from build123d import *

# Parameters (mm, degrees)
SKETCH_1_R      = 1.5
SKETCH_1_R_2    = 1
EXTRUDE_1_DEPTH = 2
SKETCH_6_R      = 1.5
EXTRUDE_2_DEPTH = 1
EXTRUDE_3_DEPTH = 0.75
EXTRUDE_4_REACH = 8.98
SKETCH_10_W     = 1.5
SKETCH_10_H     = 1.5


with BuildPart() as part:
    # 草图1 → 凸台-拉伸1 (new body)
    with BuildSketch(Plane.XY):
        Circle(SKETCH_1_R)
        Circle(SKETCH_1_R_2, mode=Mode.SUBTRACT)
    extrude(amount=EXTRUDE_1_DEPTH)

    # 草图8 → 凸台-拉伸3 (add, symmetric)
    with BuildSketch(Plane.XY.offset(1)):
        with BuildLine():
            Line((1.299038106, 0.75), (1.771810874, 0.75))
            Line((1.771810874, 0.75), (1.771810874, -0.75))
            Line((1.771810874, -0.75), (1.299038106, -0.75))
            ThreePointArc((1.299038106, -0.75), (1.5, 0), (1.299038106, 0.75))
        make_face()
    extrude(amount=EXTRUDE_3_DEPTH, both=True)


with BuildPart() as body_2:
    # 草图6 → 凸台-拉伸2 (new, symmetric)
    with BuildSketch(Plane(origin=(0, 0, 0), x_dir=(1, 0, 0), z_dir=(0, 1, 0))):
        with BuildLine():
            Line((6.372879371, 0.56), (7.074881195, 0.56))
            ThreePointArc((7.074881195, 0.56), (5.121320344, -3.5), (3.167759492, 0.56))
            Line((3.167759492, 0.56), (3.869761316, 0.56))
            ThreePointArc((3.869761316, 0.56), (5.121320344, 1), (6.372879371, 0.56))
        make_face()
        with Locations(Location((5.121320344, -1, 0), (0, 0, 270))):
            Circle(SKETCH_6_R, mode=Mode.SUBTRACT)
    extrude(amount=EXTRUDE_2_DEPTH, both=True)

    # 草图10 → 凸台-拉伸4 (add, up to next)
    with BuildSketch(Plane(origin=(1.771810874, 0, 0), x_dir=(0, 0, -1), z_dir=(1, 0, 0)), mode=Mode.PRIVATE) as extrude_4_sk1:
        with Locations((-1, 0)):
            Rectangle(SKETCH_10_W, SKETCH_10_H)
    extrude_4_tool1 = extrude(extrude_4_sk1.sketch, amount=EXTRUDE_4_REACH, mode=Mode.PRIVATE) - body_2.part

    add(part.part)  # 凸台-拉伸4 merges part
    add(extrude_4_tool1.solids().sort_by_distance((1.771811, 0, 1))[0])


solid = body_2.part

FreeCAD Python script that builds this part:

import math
import FreeCAD as App
import Part
import Sketcher

doc = App.newDocument("Part")
body = doc.addObject("PartDesign::Body", "Body")

sketch1 = body.newObject("Sketcher::SketchObject", "Sketch")
sketch1.AttachmentSupport = (doc.getObject("XY_Plane"), [""])
sketch1.MapMode = "FlatFace"
sketch1.addGeometry(Part.Circle(App.Vector(0, 0, 0), App.Vector(0, 0, 1), 1.5), False)
sketch1.addGeometry(Part.Circle(App.Vector(0, 0, 0), App.Vector(0, 0, 1), 1), False)
sketch1.addConstraint(Sketcher.Constraint("Coincident", 0, 3, -1, 1))
sketch1.addConstraint(Sketcher.Constraint("Coincident", 1, 3, -1, 1))
sketch1.addConstraint(Sketcher.Constraint("Diameter", 0, 3.0))
sketch1.addConstraint(Sketcher.Constraint("Diameter", 1, 2.0))
pad1 = body.newObject("PartDesign::Pad", "Pad")
pad1.Profile = sketch1
pad1.Length = 2

sketch2 = body.newObject("Sketcher::SketchObject", "Sketch001")
sketch2.AttachmentSupport = (doc.getObject("XY_Plane"), [""])
sketch2.MapMode = "FlatFace"
sketch2.AttachmentOffset = App.Placement(App.Vector(0, 0, 1), App.Rotation())
sketch2.addGeometry(Part.LineSegment(App.Vector(1.771811, 0.75, 0), App.Vector(1.299038, 0.75, 0)), False)
sketch2.addGeometry(Part.ArcOfCircle(Part.Circle(App.Vector(0, 0, 0), App.Vector(0, 0, 1), 1.5), math.radians(-30), math.radians(30)), False)
sketch2.addGeometry(Part.LineSegment(App.Vector(1.299038, -0.75, 0), App.Vector(1.771811, -0.75, 0)), False)
sketch2.addGeometry(Part.LineSegment(App.Vector(1.771811, -0.75, 0), App.Vector(1.771811, 0.75, 0)), False)
sketch2.addConstraint(Sketcher.Constraint("Coincident", 0, 2, 1, 2))
sketch2.addConstraint(Sketcher.Constraint("Coincident", 1, 1, 2, 1))
sketch2.addConstraint(Sketcher.Constraint("Coincident", 2, 2, 3, 1))
sketch2.addConstraint(Sketcher.Constraint("Coincident", 3, 2, 0, 1))
sketch2.addConstraint(Sketcher.Constraint("Horizontal", 0))
sketch2.addConstraint(Sketcher.Constraint("Horizontal", 2))
sketch2.addConstraint(Sketcher.Constraint("Vertical", 3))
sketch2.addConstraint(Sketcher.Constraint("Coincident", 1, 3, -1, 1))
sketch2.addConstraint(Sketcher.Constraint("Vertical", 0, 2, 1, 1))
sketch2.addConstraint(Sketcher.Constraint("Radius", 1, 1.5))
sketch2.addConstraint(Sketcher.Constraint("DistanceY", 3, 1, 3, 2, 1.5))
sketch2.addConstraint(Sketcher.Constraint("DistanceX", 0, 2, 0, 1, 0.472773))
pad2 = body.newObject("PartDesign::Pad", "Pad001")
pad2.Profile = sketch2
pad2.Length = 1.5
pad2.Midplane = True
body2 = doc.addObject("PartDesign::Body", "Body001")
body2.AllowCompound = True

sketch3 = body2.newObject("Sketcher::SketchObject", "Sketch002")
sketch3.AttachmentSupport = (doc.getObject("XZ_Plane001"), [""])
sketch3.MapMode = "FlatFace"
sketch3.addGeometry(Part.LineSegment(App.Vector(7.074881, -0.56, 0), App.Vector(6.372879, -0.56, 0)), False)
sketch3.addGeometry(Part.ArcOfCircle(Part.Circle(App.Vector(5.12132, 1, 0), App.Vector(0, 0, 1), 2), math.radians(-128.739425), math.radians(-51.260575)), False)
sketch3.addGeometry(Part.LineSegment(App.Vector(3.869761, -0.56, 0), App.Vector(3.167759, -0.56, 0)), False)
sketch3.addGeometry(Part.ArcOfCircle(Part.Circle(App.Vector(5.12132, 1, 0), App.Vector(0, 0, 1), 2.5), math.radians(-38.608828), math.radians(218.608828)), False)
sketch3.addGeometry(Part.Circle(App.Vector(5.12132, 1, 0), App.Vector(0, 0, 1), 1.5), False)
sketch3.addConstraint(Sketcher.Constraint("Coincident", 0, 2, 1, 2))
sketch3.addConstraint(Sketcher.Constraint("Coincident", 1, 1, 2, 1))
sketch3.addConstraint(Sketcher.Constraint("Coincident", 2, 2, 3, 2))
sketch3.addConstraint(Sketcher.Constraint("Coincident", 3, 1, 0, 1))
sketch3.addConstraint(Sketcher.Constraint("Horizontal", 0))
sketch3.addConstraint(Sketcher.Constraint("Horizontal", 2))
sketch3.addConstraint(Sketcher.Constraint("Coincident", 3, 3, 1, 3))
sketch3.addConstraint(Sketcher.Constraint("Coincident", 4, 3, 1, 3))
sketch3.addConstraint(Sketcher.Constraint("Horizontal", 0, 2, 1, 1))
sketch3.addConstraint(Sketcher.Constraint("Diameter", 4, 3.0))
sketch3.addConstraint(Sketcher.Constraint("Radius", 1, 2.0))
sketch3.addConstraint(Sketcher.Constraint("Radius", 3, 2.5))
sketch3.addConstraint(Sketcher.Constraint("DistanceY", -1, 1, 1, 3, 1.0))
sketch3.addConstraint(Sketcher.Constraint("DistanceX", 0, 2, 0, 1, 0.702002))
sketch3.addConstraint(Sketcher.Constraint("DistanceX", -1, 1, 1, 3, 5.12132))
pad3 = body2.newObject("PartDesign::Pad", "Pad002")
pad3.Profile = sketch3
pad3.Length = 2
pad3.Midplane = True
doc.recompute()

boolean = body2.newObject("PartDesign::Boolean", "Boolean")
boolean.Type = "Fuse"
boolean.addObjects([body])

sketch4 = body2.newObject("Sketcher::SketchObject", "Sketch003")
sketch4.AttachmentSupport = (doc.getObject("YZ_Plane001"), [""])
sketch4.MapMode = "FlatFace"
sketch4.AttachmentOffset = App.Placement(App.Vector(0, 0, 1.771811), App.Rotation())
sketch4.addGeometry(Part.LineSegment(App.Vector(0.75, 1.75, 0), App.Vector(-0.75, 1.75, 0)), False)
sketch4.addGeometry(Part.LineSegment(App.Vector(-0.75, 1.75, 0), App.Vector(-0.75, 0.25, 0)), False)
sketch4.addGeometry(Part.LineSegment(App.Vector(-0.75, 0.25, 0), App.Vector(0.75, 0.25, 0)), False)
sketch4.addGeometry(Part.LineSegment(App.Vector(0.75, 0.25, 0), App.Vector(0.75, 1.75, 0)), False)
sketch4.addConstraint(Sketcher.Constraint("Coincident", 0, 2, 1, 1))
sketch4.addConstraint(Sketcher.Constraint("Coincident", 1, 2, 2, 1))
sketch4.addConstraint(Sketcher.Constraint("Coincident", 2, 2, 3, 1))
sketch4.addConstraint(Sketcher.Constraint("Coincident", 3, 2, 0, 1))
sketch4.addConstraint(Sketcher.Constraint("Horizontal", 0))
sketch4.addConstraint(Sketcher.Constraint("Vertical", 1))
sketch4.addConstraint(Sketcher.Constraint("Horizontal", 2))
sketch4.addConstraint(Sketcher.Constraint("Vertical", 3))
sketch4.addConstraint(Sketcher.Constraint("Equal", 2, 1))
sketch4.addConstraint(Sketcher.Constraint("DistanceX", 0, 2, 0, 1, 1.5))
sketch4.addConstraint(Sketcher.Constraint("DistanceX", 0, 2, -1, 1, 0.75))
sketch4.addConstraint(Sketcher.Constraint("DistanceY", -1, 1, 0, 2, 1.75))
pad4 = body2.newObject("PartDesign::Pad", "Pad003")
pad4.Profile = sketch4
pad4.Type = "UpToFirst"

doc.recompute()
